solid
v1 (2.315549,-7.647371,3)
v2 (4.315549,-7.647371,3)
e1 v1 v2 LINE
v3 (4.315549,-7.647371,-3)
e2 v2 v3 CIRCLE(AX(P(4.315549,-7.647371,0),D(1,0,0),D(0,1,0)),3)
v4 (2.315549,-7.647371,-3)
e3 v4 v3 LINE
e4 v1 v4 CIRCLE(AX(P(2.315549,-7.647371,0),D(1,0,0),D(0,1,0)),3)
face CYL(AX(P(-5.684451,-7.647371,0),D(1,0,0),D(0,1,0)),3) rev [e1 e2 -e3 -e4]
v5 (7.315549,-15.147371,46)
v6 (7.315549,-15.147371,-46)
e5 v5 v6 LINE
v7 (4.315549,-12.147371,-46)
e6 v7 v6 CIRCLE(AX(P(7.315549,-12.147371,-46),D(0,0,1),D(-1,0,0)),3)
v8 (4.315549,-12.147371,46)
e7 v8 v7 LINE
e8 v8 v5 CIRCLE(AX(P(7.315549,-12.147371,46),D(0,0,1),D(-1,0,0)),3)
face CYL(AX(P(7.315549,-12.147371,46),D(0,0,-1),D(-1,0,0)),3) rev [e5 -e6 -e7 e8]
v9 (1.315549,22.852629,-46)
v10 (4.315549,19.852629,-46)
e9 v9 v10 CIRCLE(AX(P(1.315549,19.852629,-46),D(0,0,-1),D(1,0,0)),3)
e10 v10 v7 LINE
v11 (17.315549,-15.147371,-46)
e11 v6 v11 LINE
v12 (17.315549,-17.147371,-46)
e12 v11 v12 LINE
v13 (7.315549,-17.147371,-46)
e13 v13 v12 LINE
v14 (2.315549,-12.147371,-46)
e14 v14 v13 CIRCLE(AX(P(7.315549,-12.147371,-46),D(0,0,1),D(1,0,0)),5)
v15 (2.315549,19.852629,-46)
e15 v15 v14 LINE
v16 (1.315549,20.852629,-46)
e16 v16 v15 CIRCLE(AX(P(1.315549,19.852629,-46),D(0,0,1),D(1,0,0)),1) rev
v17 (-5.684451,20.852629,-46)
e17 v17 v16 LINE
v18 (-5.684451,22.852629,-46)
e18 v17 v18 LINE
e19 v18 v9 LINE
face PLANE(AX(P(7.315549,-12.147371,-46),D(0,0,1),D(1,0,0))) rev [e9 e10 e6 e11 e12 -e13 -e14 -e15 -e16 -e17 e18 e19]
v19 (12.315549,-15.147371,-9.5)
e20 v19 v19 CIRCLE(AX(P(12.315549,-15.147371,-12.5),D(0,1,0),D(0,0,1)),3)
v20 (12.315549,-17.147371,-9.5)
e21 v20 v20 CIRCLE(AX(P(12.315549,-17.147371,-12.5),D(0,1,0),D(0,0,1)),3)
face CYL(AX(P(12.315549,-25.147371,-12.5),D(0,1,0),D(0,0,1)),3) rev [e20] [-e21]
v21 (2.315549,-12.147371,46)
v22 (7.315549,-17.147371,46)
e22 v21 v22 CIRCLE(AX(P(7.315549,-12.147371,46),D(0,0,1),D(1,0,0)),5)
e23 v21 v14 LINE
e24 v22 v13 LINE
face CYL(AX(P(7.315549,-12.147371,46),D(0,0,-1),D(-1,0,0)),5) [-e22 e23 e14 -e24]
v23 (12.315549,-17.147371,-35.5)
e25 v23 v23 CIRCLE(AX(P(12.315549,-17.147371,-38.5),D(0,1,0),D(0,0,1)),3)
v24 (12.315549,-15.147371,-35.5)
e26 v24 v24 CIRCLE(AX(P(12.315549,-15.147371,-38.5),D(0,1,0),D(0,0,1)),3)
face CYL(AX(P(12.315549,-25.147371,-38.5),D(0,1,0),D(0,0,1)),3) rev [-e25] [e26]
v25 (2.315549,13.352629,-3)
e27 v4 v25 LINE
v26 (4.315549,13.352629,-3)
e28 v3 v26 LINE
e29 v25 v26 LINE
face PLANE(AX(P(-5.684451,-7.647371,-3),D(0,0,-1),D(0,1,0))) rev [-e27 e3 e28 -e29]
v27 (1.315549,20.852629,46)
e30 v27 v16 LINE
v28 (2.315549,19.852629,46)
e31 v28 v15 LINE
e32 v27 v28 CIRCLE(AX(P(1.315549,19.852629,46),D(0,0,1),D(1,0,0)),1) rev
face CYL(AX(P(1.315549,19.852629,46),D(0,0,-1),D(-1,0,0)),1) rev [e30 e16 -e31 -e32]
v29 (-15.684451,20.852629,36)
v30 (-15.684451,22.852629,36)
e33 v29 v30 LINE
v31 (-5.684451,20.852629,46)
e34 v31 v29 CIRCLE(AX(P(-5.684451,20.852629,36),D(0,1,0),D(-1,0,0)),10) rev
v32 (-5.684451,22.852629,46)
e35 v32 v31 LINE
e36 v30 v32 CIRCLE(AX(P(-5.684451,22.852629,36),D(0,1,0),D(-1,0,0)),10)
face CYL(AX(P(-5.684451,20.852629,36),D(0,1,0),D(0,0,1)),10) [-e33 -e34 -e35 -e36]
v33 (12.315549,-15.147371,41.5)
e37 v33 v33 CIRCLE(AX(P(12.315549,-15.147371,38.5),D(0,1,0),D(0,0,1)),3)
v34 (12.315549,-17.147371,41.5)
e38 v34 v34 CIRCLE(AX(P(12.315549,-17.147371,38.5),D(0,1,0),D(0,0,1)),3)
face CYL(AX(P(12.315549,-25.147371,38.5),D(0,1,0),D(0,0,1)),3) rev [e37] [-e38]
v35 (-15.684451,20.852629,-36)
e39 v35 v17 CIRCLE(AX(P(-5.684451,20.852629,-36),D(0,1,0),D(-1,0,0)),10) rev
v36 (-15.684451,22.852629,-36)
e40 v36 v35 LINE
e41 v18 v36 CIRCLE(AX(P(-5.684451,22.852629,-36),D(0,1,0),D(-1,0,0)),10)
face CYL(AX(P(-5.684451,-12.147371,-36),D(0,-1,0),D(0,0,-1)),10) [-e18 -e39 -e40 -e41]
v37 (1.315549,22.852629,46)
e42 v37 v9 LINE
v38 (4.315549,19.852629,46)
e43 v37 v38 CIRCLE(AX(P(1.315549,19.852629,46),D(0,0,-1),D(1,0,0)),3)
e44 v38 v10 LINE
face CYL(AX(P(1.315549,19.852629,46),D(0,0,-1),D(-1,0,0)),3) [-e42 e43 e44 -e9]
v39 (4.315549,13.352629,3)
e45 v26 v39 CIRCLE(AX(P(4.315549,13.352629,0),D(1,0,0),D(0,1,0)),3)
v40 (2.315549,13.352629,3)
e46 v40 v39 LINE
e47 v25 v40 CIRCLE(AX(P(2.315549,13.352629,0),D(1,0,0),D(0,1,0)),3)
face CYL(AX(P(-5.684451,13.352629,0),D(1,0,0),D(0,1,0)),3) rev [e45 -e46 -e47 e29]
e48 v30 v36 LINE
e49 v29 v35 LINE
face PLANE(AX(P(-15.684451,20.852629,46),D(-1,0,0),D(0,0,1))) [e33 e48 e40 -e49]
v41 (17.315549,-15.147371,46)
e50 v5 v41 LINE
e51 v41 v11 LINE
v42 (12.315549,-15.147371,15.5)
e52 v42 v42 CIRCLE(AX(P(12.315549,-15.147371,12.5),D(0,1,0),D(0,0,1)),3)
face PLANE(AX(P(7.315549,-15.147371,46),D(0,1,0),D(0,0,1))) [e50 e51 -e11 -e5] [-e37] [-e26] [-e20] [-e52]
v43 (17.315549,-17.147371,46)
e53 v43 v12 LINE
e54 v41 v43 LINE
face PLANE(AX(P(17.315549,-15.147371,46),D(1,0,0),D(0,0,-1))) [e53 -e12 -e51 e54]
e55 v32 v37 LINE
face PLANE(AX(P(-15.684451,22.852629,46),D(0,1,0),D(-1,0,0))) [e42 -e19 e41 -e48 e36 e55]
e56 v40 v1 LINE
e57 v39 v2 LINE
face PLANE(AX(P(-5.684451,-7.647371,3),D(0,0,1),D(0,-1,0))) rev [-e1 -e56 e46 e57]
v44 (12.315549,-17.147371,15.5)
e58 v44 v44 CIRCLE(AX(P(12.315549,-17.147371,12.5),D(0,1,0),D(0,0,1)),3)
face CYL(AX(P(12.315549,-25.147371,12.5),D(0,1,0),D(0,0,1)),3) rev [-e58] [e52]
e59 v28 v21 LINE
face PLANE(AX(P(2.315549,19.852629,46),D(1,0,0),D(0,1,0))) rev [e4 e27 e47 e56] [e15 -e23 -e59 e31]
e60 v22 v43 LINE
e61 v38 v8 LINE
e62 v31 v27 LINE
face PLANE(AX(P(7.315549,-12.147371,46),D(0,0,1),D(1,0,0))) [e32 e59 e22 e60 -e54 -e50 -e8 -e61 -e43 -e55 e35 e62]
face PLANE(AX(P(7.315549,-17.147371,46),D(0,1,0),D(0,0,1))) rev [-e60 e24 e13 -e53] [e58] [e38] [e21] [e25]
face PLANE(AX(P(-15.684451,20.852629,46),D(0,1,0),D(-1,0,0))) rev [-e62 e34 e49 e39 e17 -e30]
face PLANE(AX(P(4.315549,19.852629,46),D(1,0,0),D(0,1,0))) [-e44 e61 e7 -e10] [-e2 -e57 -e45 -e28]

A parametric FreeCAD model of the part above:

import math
import FreeCAD as App
import Part
import Sketcher

V = App.Vector


def edges_at(feature, points):
    """Names of the edges that pass closest to the given points."""
    edges = feature.Shape.Edges
    near = lambda p: min(range(len(edges)), key=lambda i: edges[i].distToShape(Part.Vertex(*p))[0])
    return sorted({f"Edge{near(p) + 1}" for p in points})

doc = App.newDocument("Part")
body = doc.addObject("PartDesign::Body", "Body")

sketch1 = doc.addObject("Sketcher::SketchObject", "Sketch")
body.addObject(sketch1)
sketch1.AttachmentSupport = (doc.XY_Plane, [""])
sketch1.MapMode = "FlatFace"
sketch1.addGeometry([
    Part.LineSegment(V(1.315549, 22.852629, 0), V(-15.684451, 22.852629, 0)),
    Part.LineSegment(V(-15.684451, 22.852629, 0), V(-15.684451, 20.852629, 0)),
    Part.LineSegment(V(-15.684451, 20.852629, 0), V(1.315549, 20.852629, 0)),
    Part.ArcOfCircle(Part.Circle(V(1.315549, 19.852629, 0), V(0, 0, 1), 1), math.radians(0), math.radians(90)),
    Part.LineSegment(V(2.315549, 19.852629, 0), V(2.315549, -12.147371, 0)),
    Part.ArcOfCircle(Part.Circle(V(7.315549, -12.147371, 0), V(0, 0, 1), 5), math.radians(180), math.radians(270)),
    Part.LineSegment(V(7.315549, -17.147371, 0), V(17.315549, -17.147371, 0)),
    Part.LineSegment(V(17.315549, -17.147371, 0), V(17.315549, -15.147371, 0)),
    Part.LineSegment(V(17.315549, -15.147371, 0), V(7.315549, -15.147371, 0)),
    Part.ArcOfCircle(Part.Circle(V(7.315549, -12.147371, 0), V(0, 0, 1), 3), math.radians(180), math.radians(270)),
    Part.LineSegment(V(4.315549, -12.147371, 0), V(4.315549, 19.852629, 0)),
    Part.ArcOfCircle(Part.Circle(V(1.315549, 19.852629, 0), V(0, 0, 1), 3), math.radians(0), math.radians(90)),
], False)
sketch1.addConstraint([
    Sketcher.Constraint("Coincident", 0, 2, 1, 1),
    Sketcher.Constraint("Coincident", 1, 2, 2, 1),
    Sketcher.Constraint("Tangent", 2, 2, 3, 2),
    Sketcher.Constraint("Tangent", 3, 1, 4, 1),
    Sketcher.Constraint("Tangent", 4, 2, 5, 1),
    Sketcher.Constraint("Tangent", 5, 2, 6, 1),
    Sketcher.Constraint("Coincident", 6, 2, 7, 1),
    Sketcher.Constraint("Coincident", 7, 2, 8, 1),
    Sketcher.Constraint("Tangent", 8, 2, 9, 2),
    Sketcher.Constraint("Tangent", 9, 1, 10, 1),
    Sketcher.Constraint("Tangent", 10, 2, 11, 1),
    Sketcher.Constraint("Tangent", 11, 2, 0, 1),
    Sketcher.Constraint("Horizontal", 0),
    Sketcher.Constraint("Vertical", 1),
    Sketcher.Constraint("Horizontal", 2),
    Sketcher.Constraint("Vertical", 4),
    Sketcher.Constraint("Horizontal", 6),
    Sketcher.Constraint("Vertical", 7),
    Sketcher.Constraint("Horizontal", 8),
    Sketcher.Constraint("Vertical", 10),
    Sketcher.Constraint("Coincident", 9, 3, 5, 3),
    Sketcher.Constraint("Coincident", 11, 3, 3, 3),
    Sketcher.Constraint("Equal", 9, 11),
    Sketcher.Constraint("Radius", 3, 1.0),
    Sketcher.Constraint("Radius", 5, 5.0),
    Sketcher.Constraint("DistanceX", 0, 2, 0, 1, 17.0),
    Sketcher.Constraint("DistanceX", 6, 1, 6, 2, 10.0),
    Sketcher.Constraint("DistanceY", 4, 2, 4, 1, 32.0),
    Sketcher.Constraint("DistanceX", -1, 1, 3, 3, 1.315549),
    Sketcher.Constraint("DistanceY", -1, 1, 3, 3, 19.852629),
])
pad1 = doc.addObject("PartDesign::Pad", "Pad")
body.addObject(pad1)
pad1.Profile = sketch1
pad1.Length = 92
pad1.Midplane = True

sketch2 = doc.addObject("Sketcher::SketchObject", "Sketch001")
body.addObject(sketch2)
sketch2.AttachmentSupport = (doc.XZ_Plane, [""])
sketch2.MapMode = "FlatFace"
sketch2.AttachmentOffset = App.Placement(V(0, 0, 15.147371), App.Rotation())
sketch2.addGeometry([
    Part.Circle(V(12.315549, 38.5, 0), V(0, 0, 1), 3),
    Part.Circle(V(12.315549, 12.5, 0), V(0, 0, 1), 3),
    Part.Circle(V(12.315549, -12.5, 0), V(0, 0, 1), 3),
    Part.Circle(V(12.315549, -38.5, 0), V(0, 0, 1), 3),
], False)
sketch2.addConstraint([
    Sketcher.Constraint("Equal", 0, 1),
    Sketcher.Constraint("Equal", 1, 2),
    Sketcher.Constraint("Equal", 2, 3),
    Sketcher.Constraint("Symmetric", 1, 3, 2, 3, -1),
    Sketcher.Constraint("Symmetric", 0, 3, 3, 3, -1),
    Sketcher.Constraint("Vertical", 0, 3, 1, 3),
    Sketcher.Constraint("Diameter", 0, 6.0),
    Sketcher.Constraint("DistanceY", 1, 3, 0, 3, 26.0),
    Sketcher.Constraint("DistanceY", 2, 3, 1, 3, 25.0),
    Sketcher.Constraint("DistanceX", -1, 1, 0, 3, 12.315549),
])
pocket1 = doc.addObject("PartDesign::Pocket", "Pocket")
body.addObject(pocket1)
pocket1.Profile = sketch2
pocket1.Length = 10
pocket1.Reversed = True

sketch3 = doc.addObject("Sketcher::SketchObject", "Sketch002")
body.addObject(sketch3)
sketch3.AttachmentSupport = (doc.YZ_Plane, [""])
sketch3.MapMode = "FlatFace"
sketch3.AttachmentOffset = App.Placement(V(0, 0, 4.315549), App.Rotation())
sketch3.addGeometry([
    Part.LineSegment(V(13.352629, 3, 0), V(-7.647371, 3, 0)),
    Part.ArcOfCircle(Part.Circle(V(-7.647371, 0, 0), V(0, 0, 1), 3), math.radians(90), math.radians(270)),
    Part.LineSegment(V(-7.647371, -3, 0), V(13.352629, -3, 0)),
    Part.ArcOfCircle(Part.Circle(V(13.352629, 0, 0), V(0, 0, 1), 3), math.radians(-90), math.radians(90)),
], False)
sketch3.addConstraint([
    Sketcher.Constraint("Tangent", 0, 2, 1, 1),
    Sketcher.Constraint("Tangent", 1, 2, 2, 1),
    Sketcher.Constraint("Tangent", 2, 2, 3, 1),
    Sketcher.Constraint("Tangent", 3, 2, 0, 1),
    Sketcher.Constraint("Horizontal", 0),
    Sketcher.Constraint("Horizontal", 2),
    Sketcher.Constraint("PointOnObject", 1, 3, -1),
    Sketcher.Constraint("Radius", 1, 3.0),
    Sketcher.Constraint("DistanceX", 0, 2, 0, 1, 21.0),
    Sketcher.Constraint("DistanceX", 1, 3, -1, 1, 7.647371),
])
pocket2 = doc.addObject("PartDesign::Pocket", "Pocket001")
body.addObject(pocket2)
pocket2.Profile = sketch3
pocket2.Length = 10
doc.recompute()

fillet = doc.addObject("PartDesign::Fillet", "Fillet")
body.addObject(fillet)
fillet.Base = (pocket2, edges_at(pocket2, [(-15.684, 21.853, -46), (-15.684, 21.853, 46)]))
fillet.Radius = 10

doc.recompute()
